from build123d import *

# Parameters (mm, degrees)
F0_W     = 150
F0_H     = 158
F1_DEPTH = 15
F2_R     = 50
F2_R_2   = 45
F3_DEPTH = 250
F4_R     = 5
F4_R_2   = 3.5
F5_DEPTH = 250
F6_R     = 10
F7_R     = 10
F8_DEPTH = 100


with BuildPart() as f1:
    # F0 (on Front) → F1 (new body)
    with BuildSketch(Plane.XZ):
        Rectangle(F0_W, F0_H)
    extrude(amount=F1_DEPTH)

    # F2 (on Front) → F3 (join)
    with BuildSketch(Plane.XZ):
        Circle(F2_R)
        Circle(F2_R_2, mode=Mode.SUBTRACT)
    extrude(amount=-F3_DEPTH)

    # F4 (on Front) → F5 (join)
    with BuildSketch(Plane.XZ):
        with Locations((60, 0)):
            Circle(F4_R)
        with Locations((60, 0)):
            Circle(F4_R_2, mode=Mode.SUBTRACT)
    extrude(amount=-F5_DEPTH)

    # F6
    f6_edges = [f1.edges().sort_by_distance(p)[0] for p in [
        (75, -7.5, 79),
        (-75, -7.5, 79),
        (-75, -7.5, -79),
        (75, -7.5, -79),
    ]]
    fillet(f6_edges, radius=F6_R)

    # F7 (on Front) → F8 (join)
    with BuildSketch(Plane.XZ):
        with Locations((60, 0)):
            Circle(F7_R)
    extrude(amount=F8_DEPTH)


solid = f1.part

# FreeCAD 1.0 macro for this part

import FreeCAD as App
import Part
import Sketcher

V = App.Vector
Q = App.Units.Quantity


def edges_at(feature, points):
    """Names of the edges that pass closest to the given points."""
    edges = feature.Shape.Edges
    near = lambda p: min(range(len(edges)), key=lambda i: edges[i].distToShape(Part.Vertex(*p))[0])
    return sorted({f"Edge{near(p) + 1}" for p in points})


def add_polygon(sketch, points):
    """Adds a closed chain of lines whose ends are joined by coincident constraints."""
    first, n = sketch.GeometryCount, len(points)
    for a, b in zip(points, points[1:] + points[:1]):
        sketch.addGeometry(Part.LineSegment(App.Vector(*a, 0), App.Vector(*b, 0)), False)
    for i in range(n):
        sketch.addConstraint(Sketcher.Constraint("Coincident", first + i, 2, first + (i + 1) % n, 1))

doc = App.newDocument("Part")
params = doc.addObject("Spreadsheet::Sheet", "Params")
for row, (alias, value) in enumerate([
    ("sketch1_width", "150 mm"),
    ("sketch1_height", "158 mm"),
    ("pad1_length", "15 mm"),
    ("sketch2_diameter", "100 mm"),
    ("sketch2_diameter2", "90 mm"),
    ("pad2_length", "250 mm"),
    ("sketch3_diameter", "10 mm"),
    ("sketch3_diameter2", "7 mm"),
    ("pad3_length", "250 mm"),
    ("fillet_radius", "10 mm"),
    ("sketch4_diameter", "20 mm"),
    ("pad4_length", "100 mm"),
], start=1):
    params.set(f"A{row}", alias)
    params.set(f"B{row}", "=" + value)
    params.setAlias(f"B{row}", alias)

body = doc.addObject("PartDesign::Body", "Body")

# Sketch on XZ plane
sketch1 = body.newObject("Sketcher::SketchObject", "Sketch")
sketch1.AttachmentSupport = (doc.getObject("XZ_Plane"), [""])
sketch1.MapMode = "FlatFace"
add_polygon(sketch1, [(-75, 79), (-75, -79), (75, -79), (75, 79)])  # lines 0-3
sketch1.addConstraint([
    Sketcher.Constraint("Vertical", 0),
    Sketcher.Constraint("Horizontal", 1),
    Sketcher.Constraint("Vertical", 2),
    Sketcher.Constraint("Horizontal", 3),
    Sketcher.Constraint("Symmetric", 0, 2, 2, 2, -1, 1),
    Sketcher.Constraint("DistanceX", 1, 1, 1, 2, Q("150 mm")),
    Sketcher.Constraint("DistanceY", 0, 2, 0, 1, Q("158 mm")),
])
sketch1.setExpression("Constraints[9]", "Params.sketch1_width")
sketch1.setExpression("Constraints[10]", "Params.sketch1_height")
pad1 = body.newObject("PartDesign::Pad", "Pad")
pad1.Profile = sketch1
pad1.setExpression("Length", "Params.pad1_length")

# Sketch on XZ plane
sketch2 = body.newObject("Sketcher::SketchObject", "Sketch001")
sketch2.AttachmentSupport = (doc.getObject("XZ_Plane"), [""])
sketch2.MapMode = "FlatFace"
sketch2.addGeometry([
    Part.Circle(V(0, 0, 0), V(0, 0, 1), 50),
    Part.Circle(V(0, 0, 0), V(0, 0, 1), 45),
], False)
sketch2.addConstraint([
    Sketcher.Constraint("Coincident", 0, 3, -1, 1),
    Sketcher.Constraint("Coincident", 1, 3, -1, 1),
    Sketcher.Constraint("Diameter", 0, Q("100 mm")),
    Sketcher.Constraint("Diameter", 1, Q("90 mm")),
])
sketch2.setExpression("Constraints[2]", "Params.sketch2_diameter")
sketch2.setExpression("Constraints[3]", "Params.sketch2_diameter2")
pad2 = body.newObject("PartDesign::Pad", "Pad001")
pad2.Profile = sketch2
pad2.setExpression("Length", "Params.pad2_length")
pad2.Reversed = True

# Sketch on XZ plane
sketch3 = body.newObject("Sketcher::SketchObject", "Sketch002")
sketch3.AttachmentSupport = (doc.getObject("XZ_Plane"), [""])
sketch3.MapMode = "FlatFace"
sketch3.addGeometry([
    Part.Circle(V(60, 0, 0), V(0, 0, 1), 5),
    Part.Circle(V(60, 0, 0), V(0, 0, 1), 3.5),
], False)
sketch3.addConstraint([
    Sketcher.Constraint("Coincident", 1, 3, 0, 3),
    Sketcher.Constraint("PointOnObject", 0, 3, -1),
    Sketcher.Constraint("Diameter", 0, Q("10 mm")),
    Sketcher.Constraint("Diameter", 1, Q("7 mm")),
    Sketcher.Constraint("DistanceX", -1, 1, 0, 3, Q("60 mm")),
])
sketch3.setExpression("Constraints[2]", "Params.sketch3_diameter")
sketch3.setExpression("Constraints[3]", "Params.sketch3_diameter2")
pad3 = body.newObject("PartDesign::Pad", "Pad002")
pad3.Profile = sketch3
pad3.setExpression("Length", "Params.pad3_length")
pad3.Reversed = True
doc.recompute()

fillet = body.newObject("PartDesign::Fillet", "Fillet")
fillet.Base = (pad3, edges_at(pad3, [
    (75, -7.5, 79),
    (-75, -7.5, 79),
    (-75, -7.5, -79),
    (75, -7.5, -79),
]))
fillet.setExpression("Radius", "Params.fillet_radius")

# Sketch on XZ plane
sketch4 = body.newObject("Sketcher::SketchObject", "Sketch003")
sketch4.AttachmentSupport = (doc.getObject("XZ_Plane"), [""])
sketch4.MapMode = "FlatFace"
sketch4.addGeometry(Part.Circle(V(60, 0, 0), V(0, 0, 1), 10), False)
sketch4.addConstraint([
    Sketcher.Constraint("PointOnObject", 0, 3, -1),
    Sketcher.Constraint("Diameter", 0, Q("20 mm")),
    Sketcher.Constraint("DistanceX", -1, 1, 0, 3, Q("60 mm")),
])
sketch4.setExpression("Constraints[1]", "Params.sketch4_diameter")
pad4 = body.newObject("PartDesign::Pad", "Pad003")
pad4.Profile = sketch4
pad4.setExpression("Length", "Params.pad4_length")

doc.recompute()
